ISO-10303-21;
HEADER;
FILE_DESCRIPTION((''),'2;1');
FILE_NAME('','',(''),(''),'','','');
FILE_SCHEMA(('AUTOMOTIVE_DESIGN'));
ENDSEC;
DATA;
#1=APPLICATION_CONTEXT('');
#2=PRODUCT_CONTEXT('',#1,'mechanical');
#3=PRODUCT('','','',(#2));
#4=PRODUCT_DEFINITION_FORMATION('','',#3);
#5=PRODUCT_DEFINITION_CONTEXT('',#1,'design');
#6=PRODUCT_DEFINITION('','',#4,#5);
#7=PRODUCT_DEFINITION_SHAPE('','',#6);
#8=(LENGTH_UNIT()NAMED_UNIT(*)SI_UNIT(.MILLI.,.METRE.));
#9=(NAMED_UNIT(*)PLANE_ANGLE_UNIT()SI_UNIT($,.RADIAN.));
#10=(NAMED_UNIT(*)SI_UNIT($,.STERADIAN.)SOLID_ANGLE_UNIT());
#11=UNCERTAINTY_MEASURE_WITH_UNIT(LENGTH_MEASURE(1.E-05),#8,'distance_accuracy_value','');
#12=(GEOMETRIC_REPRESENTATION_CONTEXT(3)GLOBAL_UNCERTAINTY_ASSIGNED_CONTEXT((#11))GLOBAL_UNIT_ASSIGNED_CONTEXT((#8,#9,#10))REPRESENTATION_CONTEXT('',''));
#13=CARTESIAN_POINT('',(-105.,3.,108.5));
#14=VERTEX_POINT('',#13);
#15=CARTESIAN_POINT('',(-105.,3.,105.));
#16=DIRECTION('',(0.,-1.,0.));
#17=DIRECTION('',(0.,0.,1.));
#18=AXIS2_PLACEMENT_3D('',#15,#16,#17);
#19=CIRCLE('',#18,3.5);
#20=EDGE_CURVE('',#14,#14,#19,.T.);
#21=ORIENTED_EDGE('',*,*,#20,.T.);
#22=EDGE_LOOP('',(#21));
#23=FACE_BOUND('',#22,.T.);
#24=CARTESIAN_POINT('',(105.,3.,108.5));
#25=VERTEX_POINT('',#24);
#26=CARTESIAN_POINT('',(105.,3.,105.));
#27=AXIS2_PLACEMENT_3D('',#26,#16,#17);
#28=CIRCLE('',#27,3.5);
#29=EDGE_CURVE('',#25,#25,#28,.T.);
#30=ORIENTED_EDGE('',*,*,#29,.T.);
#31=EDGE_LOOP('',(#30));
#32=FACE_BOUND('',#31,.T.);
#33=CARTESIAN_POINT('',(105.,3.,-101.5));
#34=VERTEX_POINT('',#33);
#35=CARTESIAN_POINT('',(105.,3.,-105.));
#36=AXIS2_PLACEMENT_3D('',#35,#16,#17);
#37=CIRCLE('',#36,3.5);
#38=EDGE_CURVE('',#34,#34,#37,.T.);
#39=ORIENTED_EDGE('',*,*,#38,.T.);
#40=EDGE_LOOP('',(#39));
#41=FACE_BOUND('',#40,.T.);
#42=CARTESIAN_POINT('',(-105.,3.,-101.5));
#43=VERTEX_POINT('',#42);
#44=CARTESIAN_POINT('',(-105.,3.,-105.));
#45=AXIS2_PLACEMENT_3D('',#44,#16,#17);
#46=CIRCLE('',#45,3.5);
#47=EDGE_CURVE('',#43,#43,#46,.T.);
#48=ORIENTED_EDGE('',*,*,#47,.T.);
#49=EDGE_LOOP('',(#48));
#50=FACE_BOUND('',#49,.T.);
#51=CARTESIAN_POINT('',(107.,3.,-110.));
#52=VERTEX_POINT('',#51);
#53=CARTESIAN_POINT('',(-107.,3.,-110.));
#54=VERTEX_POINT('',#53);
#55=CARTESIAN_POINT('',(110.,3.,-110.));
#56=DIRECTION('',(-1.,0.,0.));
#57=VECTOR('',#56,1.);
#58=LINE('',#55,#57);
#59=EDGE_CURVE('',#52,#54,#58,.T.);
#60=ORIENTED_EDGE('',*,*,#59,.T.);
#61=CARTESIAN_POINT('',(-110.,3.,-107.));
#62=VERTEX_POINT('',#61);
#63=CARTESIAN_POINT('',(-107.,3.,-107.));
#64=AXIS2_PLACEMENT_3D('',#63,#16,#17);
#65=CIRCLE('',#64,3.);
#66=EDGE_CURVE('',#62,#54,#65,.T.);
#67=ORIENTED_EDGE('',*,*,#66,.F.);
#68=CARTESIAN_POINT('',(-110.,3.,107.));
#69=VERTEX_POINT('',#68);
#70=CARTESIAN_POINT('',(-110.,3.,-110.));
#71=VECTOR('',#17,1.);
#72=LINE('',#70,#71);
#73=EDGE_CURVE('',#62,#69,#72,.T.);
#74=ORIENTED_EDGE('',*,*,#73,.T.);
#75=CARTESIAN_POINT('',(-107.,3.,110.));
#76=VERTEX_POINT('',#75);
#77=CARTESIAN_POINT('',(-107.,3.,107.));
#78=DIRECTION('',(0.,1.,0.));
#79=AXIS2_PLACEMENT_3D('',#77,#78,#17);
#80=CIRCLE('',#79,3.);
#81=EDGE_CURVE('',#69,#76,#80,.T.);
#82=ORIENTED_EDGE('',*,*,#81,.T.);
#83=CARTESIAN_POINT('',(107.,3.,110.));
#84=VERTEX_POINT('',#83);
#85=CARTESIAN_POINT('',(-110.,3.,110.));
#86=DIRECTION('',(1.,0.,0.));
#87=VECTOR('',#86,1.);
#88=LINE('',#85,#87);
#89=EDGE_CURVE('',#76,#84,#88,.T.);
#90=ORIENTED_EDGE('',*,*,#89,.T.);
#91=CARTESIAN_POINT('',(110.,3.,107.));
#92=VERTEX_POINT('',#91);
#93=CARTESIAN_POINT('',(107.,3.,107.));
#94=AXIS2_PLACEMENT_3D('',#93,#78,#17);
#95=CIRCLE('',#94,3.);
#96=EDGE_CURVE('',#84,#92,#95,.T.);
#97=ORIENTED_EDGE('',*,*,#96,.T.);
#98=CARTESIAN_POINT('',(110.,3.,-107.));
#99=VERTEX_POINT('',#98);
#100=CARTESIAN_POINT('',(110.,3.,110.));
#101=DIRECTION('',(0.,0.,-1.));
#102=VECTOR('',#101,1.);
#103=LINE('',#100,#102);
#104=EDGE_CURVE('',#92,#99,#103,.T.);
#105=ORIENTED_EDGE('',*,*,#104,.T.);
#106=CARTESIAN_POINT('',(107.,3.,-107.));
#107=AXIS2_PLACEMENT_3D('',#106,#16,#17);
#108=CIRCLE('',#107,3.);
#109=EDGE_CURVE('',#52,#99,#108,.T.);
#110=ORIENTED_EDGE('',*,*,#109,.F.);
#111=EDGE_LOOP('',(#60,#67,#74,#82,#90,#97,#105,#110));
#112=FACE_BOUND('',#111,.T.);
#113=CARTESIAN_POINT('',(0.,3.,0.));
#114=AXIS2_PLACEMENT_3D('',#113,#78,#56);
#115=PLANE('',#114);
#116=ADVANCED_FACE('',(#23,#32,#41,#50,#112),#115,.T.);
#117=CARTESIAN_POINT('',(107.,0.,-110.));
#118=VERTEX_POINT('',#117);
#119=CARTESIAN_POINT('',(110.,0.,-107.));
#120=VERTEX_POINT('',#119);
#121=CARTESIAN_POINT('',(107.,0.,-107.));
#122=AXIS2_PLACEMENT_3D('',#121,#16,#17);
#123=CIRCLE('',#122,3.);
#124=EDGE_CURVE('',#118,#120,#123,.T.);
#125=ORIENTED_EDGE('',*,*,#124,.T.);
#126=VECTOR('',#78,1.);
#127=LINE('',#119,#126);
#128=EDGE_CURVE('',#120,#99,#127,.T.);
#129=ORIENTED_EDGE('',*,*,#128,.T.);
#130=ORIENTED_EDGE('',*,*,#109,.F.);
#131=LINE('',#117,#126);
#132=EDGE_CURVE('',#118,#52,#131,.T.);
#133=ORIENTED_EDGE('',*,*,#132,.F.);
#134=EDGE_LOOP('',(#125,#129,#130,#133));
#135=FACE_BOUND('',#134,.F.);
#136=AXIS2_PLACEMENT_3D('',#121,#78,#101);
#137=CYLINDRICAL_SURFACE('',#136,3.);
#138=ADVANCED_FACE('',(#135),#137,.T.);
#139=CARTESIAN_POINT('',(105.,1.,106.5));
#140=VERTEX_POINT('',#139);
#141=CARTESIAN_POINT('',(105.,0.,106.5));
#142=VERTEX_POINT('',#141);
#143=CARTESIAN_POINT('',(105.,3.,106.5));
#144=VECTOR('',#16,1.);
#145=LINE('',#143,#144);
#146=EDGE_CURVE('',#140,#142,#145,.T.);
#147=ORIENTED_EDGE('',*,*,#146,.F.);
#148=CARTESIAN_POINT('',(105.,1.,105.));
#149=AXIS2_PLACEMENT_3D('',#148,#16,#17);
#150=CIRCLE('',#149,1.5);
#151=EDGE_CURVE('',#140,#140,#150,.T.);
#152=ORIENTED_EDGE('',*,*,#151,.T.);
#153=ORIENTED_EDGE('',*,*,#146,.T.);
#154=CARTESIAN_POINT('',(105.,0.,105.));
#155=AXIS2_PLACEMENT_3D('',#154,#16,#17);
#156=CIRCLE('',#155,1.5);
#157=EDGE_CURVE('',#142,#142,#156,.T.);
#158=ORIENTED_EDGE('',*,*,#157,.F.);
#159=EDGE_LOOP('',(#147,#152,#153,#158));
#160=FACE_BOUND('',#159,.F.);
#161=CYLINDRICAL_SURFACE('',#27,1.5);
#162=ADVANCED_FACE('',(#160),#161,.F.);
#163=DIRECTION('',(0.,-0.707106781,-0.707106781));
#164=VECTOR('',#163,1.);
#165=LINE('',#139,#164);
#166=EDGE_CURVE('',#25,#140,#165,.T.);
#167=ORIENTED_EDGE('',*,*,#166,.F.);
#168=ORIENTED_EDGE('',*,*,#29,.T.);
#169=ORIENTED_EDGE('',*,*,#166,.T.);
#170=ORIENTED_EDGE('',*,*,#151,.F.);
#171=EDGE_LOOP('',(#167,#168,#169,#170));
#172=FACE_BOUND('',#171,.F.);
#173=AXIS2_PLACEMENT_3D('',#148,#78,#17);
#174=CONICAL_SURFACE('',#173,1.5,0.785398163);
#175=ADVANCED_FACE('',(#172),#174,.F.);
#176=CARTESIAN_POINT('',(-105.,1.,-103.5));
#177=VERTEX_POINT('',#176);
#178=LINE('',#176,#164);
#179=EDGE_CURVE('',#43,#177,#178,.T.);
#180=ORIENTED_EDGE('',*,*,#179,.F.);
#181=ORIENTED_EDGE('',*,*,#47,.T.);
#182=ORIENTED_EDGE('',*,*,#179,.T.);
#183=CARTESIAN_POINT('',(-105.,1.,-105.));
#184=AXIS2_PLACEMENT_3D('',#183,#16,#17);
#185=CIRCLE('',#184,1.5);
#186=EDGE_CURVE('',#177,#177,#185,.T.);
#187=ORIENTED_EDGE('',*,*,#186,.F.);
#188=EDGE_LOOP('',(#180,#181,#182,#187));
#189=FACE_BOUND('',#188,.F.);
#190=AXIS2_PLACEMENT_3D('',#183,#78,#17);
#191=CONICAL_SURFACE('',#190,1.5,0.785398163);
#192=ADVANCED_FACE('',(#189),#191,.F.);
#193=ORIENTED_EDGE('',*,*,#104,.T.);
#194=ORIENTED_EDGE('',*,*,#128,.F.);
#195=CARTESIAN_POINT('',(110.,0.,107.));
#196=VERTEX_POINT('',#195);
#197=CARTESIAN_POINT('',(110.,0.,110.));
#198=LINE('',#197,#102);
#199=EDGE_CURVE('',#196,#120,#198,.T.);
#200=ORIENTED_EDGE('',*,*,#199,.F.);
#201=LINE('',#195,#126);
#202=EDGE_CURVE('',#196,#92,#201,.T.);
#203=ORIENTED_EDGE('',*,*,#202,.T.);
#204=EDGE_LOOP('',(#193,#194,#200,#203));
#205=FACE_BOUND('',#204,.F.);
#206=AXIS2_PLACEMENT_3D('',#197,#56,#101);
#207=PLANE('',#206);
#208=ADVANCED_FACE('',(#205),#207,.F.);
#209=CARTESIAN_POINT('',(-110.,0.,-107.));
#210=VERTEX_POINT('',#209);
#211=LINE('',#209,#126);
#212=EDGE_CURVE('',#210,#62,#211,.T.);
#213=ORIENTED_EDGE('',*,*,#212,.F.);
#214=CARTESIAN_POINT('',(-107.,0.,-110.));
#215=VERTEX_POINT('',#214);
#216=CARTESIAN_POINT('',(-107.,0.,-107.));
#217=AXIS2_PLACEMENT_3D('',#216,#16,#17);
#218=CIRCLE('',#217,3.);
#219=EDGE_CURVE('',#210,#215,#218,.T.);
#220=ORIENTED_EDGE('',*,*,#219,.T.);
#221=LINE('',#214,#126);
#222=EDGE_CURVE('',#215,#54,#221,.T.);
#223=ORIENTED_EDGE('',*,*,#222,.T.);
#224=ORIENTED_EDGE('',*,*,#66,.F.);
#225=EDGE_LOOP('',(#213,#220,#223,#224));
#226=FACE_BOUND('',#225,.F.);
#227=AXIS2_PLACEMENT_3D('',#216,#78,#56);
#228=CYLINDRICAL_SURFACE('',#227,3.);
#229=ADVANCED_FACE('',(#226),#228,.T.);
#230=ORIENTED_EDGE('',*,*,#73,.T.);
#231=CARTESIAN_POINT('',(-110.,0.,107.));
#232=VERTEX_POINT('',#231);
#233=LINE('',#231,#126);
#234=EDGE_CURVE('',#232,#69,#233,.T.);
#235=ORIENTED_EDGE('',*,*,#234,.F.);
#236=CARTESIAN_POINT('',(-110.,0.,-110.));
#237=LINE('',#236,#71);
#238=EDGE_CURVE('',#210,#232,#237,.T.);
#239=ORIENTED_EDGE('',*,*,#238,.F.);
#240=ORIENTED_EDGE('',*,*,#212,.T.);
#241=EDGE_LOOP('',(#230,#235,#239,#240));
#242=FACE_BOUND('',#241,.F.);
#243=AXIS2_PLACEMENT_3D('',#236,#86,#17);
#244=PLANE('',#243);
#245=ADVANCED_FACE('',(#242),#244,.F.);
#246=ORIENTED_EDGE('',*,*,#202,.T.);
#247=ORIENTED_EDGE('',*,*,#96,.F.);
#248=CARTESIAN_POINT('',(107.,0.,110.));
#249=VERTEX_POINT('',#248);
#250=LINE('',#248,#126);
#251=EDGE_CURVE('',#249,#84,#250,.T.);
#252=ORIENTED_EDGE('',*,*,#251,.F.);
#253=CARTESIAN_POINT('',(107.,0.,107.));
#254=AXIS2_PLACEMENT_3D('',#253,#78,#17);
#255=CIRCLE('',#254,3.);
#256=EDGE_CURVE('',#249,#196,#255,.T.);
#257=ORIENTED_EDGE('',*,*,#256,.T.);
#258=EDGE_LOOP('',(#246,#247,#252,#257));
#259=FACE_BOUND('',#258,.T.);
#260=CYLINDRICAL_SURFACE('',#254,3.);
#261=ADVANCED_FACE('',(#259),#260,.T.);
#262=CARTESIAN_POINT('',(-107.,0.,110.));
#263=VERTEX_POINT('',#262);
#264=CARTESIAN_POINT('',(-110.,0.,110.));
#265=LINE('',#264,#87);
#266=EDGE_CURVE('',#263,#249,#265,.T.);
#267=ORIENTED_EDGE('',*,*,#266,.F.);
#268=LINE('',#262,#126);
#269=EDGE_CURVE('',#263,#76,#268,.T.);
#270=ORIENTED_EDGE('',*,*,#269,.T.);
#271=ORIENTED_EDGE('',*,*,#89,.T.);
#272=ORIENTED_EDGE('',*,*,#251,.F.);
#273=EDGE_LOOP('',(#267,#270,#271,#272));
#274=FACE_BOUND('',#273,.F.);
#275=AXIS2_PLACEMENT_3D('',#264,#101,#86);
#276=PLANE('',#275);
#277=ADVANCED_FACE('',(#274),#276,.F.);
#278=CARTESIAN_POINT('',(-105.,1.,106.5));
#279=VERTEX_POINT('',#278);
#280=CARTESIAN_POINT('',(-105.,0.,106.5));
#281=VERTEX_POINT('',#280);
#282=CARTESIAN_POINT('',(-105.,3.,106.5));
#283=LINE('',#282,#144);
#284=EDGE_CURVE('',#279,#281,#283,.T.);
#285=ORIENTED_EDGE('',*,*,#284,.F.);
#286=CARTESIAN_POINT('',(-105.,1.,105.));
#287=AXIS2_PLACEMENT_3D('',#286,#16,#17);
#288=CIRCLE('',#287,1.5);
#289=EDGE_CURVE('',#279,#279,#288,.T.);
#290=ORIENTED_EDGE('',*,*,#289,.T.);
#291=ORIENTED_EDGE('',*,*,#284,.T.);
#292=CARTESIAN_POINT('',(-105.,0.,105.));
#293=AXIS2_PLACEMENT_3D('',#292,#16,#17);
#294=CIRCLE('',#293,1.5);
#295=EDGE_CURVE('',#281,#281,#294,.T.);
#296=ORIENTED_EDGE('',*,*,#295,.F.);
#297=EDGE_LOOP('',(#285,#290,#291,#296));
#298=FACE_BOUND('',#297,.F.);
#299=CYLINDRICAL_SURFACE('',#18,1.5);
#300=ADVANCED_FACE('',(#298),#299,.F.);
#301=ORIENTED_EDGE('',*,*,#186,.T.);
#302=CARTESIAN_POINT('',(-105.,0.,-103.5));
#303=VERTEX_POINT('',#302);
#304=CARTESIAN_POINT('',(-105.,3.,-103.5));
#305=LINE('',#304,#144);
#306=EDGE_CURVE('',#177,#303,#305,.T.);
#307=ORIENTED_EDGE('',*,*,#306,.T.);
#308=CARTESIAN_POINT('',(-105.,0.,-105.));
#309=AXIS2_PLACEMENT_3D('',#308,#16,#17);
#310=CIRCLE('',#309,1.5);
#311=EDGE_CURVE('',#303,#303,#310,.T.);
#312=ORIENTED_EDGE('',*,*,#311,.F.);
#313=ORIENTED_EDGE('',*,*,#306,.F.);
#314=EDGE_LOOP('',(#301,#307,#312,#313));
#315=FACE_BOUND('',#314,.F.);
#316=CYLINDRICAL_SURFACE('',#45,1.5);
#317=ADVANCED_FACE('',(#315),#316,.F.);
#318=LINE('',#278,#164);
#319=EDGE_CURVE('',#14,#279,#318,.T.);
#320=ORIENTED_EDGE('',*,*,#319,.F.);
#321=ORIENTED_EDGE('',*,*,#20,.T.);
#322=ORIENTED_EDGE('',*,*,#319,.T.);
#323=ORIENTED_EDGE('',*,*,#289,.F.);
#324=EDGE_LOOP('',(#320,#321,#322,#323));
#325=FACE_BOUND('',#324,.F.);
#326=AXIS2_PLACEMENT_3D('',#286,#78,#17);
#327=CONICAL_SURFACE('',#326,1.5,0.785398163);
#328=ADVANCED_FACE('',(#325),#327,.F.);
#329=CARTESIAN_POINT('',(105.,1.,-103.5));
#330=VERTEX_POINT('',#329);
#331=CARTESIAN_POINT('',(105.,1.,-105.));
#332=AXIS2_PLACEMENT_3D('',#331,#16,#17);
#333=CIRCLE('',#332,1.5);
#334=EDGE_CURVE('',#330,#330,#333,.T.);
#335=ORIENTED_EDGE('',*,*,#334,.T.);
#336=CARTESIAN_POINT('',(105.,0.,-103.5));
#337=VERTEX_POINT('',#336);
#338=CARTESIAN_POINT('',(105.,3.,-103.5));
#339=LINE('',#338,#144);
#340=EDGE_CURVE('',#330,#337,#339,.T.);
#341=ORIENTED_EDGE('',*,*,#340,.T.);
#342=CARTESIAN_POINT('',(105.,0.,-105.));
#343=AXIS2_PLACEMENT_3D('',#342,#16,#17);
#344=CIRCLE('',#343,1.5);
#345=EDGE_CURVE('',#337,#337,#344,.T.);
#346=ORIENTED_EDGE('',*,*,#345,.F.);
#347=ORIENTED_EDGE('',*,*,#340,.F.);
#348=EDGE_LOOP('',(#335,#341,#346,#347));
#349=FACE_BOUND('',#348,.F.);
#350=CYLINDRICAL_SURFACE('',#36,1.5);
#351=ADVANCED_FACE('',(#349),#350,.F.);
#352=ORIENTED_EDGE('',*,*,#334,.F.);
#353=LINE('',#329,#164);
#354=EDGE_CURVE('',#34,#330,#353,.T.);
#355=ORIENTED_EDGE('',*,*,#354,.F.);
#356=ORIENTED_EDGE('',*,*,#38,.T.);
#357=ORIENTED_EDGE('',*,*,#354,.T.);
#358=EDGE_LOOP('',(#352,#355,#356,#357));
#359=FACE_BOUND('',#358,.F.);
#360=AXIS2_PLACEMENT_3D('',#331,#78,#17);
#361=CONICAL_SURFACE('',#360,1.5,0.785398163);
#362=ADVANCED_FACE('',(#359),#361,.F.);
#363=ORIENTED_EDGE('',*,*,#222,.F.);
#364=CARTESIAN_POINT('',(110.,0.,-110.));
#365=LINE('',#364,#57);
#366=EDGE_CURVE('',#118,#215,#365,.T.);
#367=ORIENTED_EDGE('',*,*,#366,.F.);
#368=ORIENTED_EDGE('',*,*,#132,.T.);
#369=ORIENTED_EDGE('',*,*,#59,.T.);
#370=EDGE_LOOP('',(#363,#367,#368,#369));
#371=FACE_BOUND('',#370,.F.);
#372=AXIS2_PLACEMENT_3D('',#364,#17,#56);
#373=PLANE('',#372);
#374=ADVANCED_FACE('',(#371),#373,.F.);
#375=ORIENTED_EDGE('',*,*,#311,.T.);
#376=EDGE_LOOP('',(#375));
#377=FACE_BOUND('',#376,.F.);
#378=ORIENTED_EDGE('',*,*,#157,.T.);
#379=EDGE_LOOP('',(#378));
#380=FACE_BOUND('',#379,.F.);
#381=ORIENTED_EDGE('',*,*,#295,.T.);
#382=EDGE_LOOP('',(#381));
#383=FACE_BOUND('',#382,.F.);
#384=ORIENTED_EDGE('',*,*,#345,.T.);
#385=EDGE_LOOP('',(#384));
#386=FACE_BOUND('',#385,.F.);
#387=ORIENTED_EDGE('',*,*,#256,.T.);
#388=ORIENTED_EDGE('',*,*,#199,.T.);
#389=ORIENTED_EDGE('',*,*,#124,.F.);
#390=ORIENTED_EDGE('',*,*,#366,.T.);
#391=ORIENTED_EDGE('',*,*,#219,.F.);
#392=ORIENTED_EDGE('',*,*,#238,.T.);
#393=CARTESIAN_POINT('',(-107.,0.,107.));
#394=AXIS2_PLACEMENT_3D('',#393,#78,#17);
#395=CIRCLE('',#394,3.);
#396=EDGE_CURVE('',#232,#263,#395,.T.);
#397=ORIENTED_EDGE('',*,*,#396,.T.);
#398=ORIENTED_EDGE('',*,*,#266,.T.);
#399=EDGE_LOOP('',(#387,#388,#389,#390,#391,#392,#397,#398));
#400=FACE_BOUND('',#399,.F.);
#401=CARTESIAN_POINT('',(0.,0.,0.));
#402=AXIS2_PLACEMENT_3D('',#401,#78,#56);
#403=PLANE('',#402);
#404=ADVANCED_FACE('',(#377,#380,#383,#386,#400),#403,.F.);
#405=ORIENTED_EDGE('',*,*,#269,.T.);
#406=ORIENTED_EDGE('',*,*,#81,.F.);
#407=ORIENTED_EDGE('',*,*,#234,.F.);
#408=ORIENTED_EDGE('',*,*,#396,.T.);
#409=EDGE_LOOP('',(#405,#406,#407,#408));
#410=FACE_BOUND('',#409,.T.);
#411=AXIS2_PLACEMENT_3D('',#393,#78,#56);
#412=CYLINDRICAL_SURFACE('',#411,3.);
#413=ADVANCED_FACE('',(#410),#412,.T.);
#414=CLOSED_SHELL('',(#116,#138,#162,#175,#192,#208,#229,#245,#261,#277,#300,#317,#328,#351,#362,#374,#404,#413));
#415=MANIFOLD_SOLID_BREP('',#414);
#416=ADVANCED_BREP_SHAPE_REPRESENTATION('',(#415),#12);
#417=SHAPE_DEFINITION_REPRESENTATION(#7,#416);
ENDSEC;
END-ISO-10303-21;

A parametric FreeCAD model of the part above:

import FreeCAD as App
import Part
import Sketcher
from FreeCAD import Vector


def edges_at(feature, points):
    """Names of the edges that pass closest to the given points."""
    edges = feature.Shape.Edges
    near = lambda p: min(range(len(edges)), key=lambda i: edges[i].distToShape(Part.Vertex(*p))[0])
    return sorted({f"Edge{near(p) + 1}" for p in points})


def add_polygon(sketch, points):
    """Adds a closed chain of lines whose ends are joined by coincident constraints."""
    first, n = sketch.GeometryCount, len(points)
    for a, b in zip(points, points[1:] + points[:1]):
        sketch.addGeometry(Part.LineSegment(App.Vector(*a, 0), App.Vector(*b, 0)), False)
    for i in range(n):
        sketch.addConstraint(Sketcher.Constraint("Coincident", first + i, 2, first + (i + 1) % n, 1))

doc = App.newDocument("Part")
body = doc.addObject("PartDesign::Body", "Body")

sketch1 = body.newObject("Sketcher::SketchObject", "Sketch")
sketch1.AttachmentSupport = (doc.getObject("XZ_Plane"), [""])
sketch1.MapMode = "FlatFace"
add_polygon(sketch1, [(-110, -110), (-110, 110), (110, 110), (110, -110)])
sketch1.addConstraint([
    Sketcher.Constraint("Vertical", 0),
    Sketcher.Constraint("Horizontal", 1),
    Sketcher.Constraint("Vertical", 2),
    Sketcher.Constraint("Horizontal", 3),
    Sketcher.Constraint("Symmetric", 0, 2, 2, 2, -1, 1),
    Sketcher.Constraint("Equal", 3, 0),
    Sketcher.Constraint("DistanceX", 1, 1, 1, 2, 220.0),
])
pad1 = body.newObject("PartDesign::Pad", "Pad")
pad1.Profile = sketch1
pad1.Length = 3
pad1.Reversed = True

sketch2 = body.newObject("Sketcher::SketchObject", "Sketch001")
sketch2.AttachmentSupport = (doc.getObject("XZ_Plane"), [""])
sketch2.MapMode = "FlatFace"
sketch2.AttachmentOffset = App.Placement(Vector(0, 0, -3), App.Rotation())
sketch2.addGeometry([
    Part.Circle(Vector(-105, 105, 0), Vector(0, 0, 1), 1.5),
    Part.Circle(Vector(-105, -105, 0), Vector(0, 0, 1), 1.5),
    Part.Circle(Vector(105, -105, 0), Vector(0, 0, 1), 1.5),
    Part.Circle(Vector(105, 105, 0), Vector(0, 0, 1), 1.5),
], False)
sketch2.addConstraint([
    Sketcher.Constraint("Equal", 0, 1),
    Sketcher.Constraint("Equal", 1, 2),
    Sketcher.Constraint("Equal", 2, 3),
    Sketcher.Constraint("Symmetric", 0, 3, 2, 3, -1, 1),
    Sketcher.Constraint("Symmetric", 1, 3, 3, 3, -1, 1),
    Sketcher.Constraint("Symmetric", 1, 3, 2, 3, -2),
    Sketcher.Constraint("Diameter", 0, 3.0),
    Sketcher.Constraint("DistanceX", 0, 3, -1, 1, 105.0),
    Sketcher.Constraint("DistanceY", -1, 1, 0, 3, 105.0),
])
doc.recompute()
hole = body.newObject("PartDesign::Hole", "Hole")
hole.Profile = sketch2
hole.ThreadType = "None"
hole.Diameter = 3
hole.DepthType = "ThroughAll"
hole.Reversed = True
doc.recompute()

fillet = body.newObject("PartDesign::Fillet", "Fillet")
fillet.Base = (hole, edges_at(hole, [
    (-110, 1.5, 110),
    (110, 1.5, 110),
    (110, 1.5, -110),
    (-110, 1.5, -110),
]))
fillet.Radius = 3
doc.recompute()

chamfer = body.newObject("PartDesign::Chamfer", "Chamfer")
chamfer.Base = (fillet, edges_at(fillet, [
    (105, 3, -106.5),
    (-105, 3, -106.5),
    (105, 3, 103.5),
    (-105, 3, 103.5),
]))
chamfer.Size = 2

doc.recompute()
